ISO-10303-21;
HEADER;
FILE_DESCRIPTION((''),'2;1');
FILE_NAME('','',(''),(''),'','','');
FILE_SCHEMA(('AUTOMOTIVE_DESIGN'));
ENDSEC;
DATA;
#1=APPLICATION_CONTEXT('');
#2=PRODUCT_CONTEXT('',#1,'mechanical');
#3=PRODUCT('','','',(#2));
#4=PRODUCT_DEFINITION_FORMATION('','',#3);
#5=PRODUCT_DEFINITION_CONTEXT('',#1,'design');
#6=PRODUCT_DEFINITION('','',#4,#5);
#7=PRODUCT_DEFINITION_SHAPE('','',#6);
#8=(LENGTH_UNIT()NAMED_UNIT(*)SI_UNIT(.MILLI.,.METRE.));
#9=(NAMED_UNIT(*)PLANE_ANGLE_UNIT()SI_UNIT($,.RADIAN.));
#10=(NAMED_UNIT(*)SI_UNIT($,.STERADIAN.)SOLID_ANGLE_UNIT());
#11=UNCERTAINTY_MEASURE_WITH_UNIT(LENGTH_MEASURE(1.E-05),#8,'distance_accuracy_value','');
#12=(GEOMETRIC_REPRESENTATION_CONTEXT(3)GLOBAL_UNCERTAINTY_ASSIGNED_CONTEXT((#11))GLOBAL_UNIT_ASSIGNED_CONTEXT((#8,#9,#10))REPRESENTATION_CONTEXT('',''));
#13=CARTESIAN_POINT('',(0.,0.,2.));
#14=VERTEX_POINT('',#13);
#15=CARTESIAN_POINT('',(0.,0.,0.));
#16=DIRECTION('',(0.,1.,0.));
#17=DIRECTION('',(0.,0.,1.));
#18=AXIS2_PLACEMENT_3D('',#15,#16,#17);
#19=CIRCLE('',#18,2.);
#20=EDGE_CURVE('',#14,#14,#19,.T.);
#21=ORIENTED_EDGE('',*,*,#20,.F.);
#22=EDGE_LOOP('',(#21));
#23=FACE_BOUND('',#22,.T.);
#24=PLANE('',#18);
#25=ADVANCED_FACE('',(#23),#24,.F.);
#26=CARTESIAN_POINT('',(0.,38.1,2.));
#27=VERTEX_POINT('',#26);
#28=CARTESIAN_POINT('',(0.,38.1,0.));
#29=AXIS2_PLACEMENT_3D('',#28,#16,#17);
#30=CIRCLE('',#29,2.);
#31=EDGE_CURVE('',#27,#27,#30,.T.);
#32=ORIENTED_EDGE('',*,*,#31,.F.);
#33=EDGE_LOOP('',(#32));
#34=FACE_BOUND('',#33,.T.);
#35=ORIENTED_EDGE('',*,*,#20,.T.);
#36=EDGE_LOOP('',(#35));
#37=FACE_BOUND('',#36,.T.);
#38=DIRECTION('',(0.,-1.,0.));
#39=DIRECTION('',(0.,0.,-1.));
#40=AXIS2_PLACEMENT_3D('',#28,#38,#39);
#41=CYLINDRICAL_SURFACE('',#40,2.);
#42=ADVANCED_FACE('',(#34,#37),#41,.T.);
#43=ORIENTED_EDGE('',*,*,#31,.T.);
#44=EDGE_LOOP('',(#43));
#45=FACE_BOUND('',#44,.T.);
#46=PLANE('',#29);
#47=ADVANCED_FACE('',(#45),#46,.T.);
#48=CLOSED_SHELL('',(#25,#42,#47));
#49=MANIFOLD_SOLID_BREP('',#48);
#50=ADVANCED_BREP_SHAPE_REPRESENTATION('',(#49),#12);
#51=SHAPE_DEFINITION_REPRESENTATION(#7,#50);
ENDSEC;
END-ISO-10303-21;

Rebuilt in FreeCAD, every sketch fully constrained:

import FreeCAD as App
import Part
import Sketcher
from FreeCAD import Vector

doc = App.newDocument("Part")
body = doc.addObject("PartDesign::Body", "Body")

sketch1 = doc.addObject("Sketcher::SketchObject", "Sketch")
body.addObject(sketch1)
sketch1.AttachmentSupport = (doc.XZ_Plane, [""])
sketch1.MapMode = "FlatFace"
sketch1.addGeometry(Part.Circle(Vector(0, 0, 0), Vector(0, 0, 1), 2), False)
sketch1.addConstraint(Sketcher.Constraint("Coincident", 0, 3, -1, 1))
sketch1.addConstraint(Sketcher.Constraint("Diameter", 0, 4.0))
pad1 = doc.addObject("PartDesign::Pad", "Pad")
body.addObject(pad1)
pad1.Profile = sketch1
pad1.Length = 38.1
pad1.Reversed = True

doc.recompute()
